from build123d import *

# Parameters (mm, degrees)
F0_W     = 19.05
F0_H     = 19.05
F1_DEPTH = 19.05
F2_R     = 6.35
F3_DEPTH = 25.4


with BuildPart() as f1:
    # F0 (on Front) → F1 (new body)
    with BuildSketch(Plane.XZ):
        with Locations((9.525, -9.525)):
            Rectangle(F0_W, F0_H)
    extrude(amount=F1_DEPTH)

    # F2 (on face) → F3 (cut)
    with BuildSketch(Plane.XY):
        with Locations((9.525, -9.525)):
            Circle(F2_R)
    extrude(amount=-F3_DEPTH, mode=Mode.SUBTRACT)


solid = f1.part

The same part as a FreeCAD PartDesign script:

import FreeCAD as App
import Part
import Sketcher
Q = App.Units.Quantity

doc = App.newDocument("Part")
body = doc.addObject("PartDesign::Body", "Body")

# Sketch on XZ plane
sketch1 = body.newObject("Sketcher::SketchObject", "Sketch")
sketch1.AttachmentSupport = (doc.getObject("XZ_Plane"), [""])
sketch1.MapMode = "FlatFace"
sketch1.addGeometry([
    Part.LineSegment(App.Vector(0, 0, 0), App.Vector(0, -19, 0)),
    Part.LineSegment(App.Vector(0, -19, 0), App.Vector(19, -19, 0)),
    Part.LineSegment(App.Vector(19, -19, 0), App.Vector(19, 0, 0)),
    Part.LineSegment(App.Vector(19, 0, 0), App.Vector(0, 0, 0)),
], False)
sketch1.addConstraint([
    Sketcher.Constraint("Coincident", 0, 2, 1, 1),
    Sketcher.Constraint("Coincident", 1, 2, 2, 1),
    Sketcher.Constraint("Coincident", 2, 2, 3, 1),
    Sketcher.Constraint("Coincident", 3, 2, 0, 1),
    Sketcher.Constraint("Vertical", 0),
    Sketcher.Constraint("Horizontal", 1),
    Sketcher.Constraint("Vertical", 2),
    Sketcher.Constraint("Horizontal", 3),
    Sketcher.Constraint("Coincident", 3, 2, -1, 1),
    Sketcher.Constraint("Equal", 3, 0),
    Sketcher.Constraint("DistanceX", 1, 1, 1, 2, Q("0.75 in")),
])
pad1 = body.newObject("PartDesign::Pad", "Pad")
pad1.Profile = sketch1
pad1.Length = Q("0.75 in")

# Sketch on XY plane
sketch2 = body.newObject("Sketcher::SketchObject", "Sketch001")
sketch2.AttachmentSupport = (doc.getObject("XY_Plane"), [""])
sketch2.MapMode = "FlatFace"
sketch2.addGeometry(Part.Circle(App.Vector(10, -10, 0), App.Vector(0, 0, 1), 6), False)
sketch2.addConstraint([
    Sketcher.Constraint("Diameter", 0, Q("0.5 in")),
    Sketcher.Constraint("DistanceX", -1, 1, 0, 3, Q("0.375 in")),
    Sketcher.Constraint("DistanceY", 0, 3, -1, 1, Q("0.375 in")),
])
pocket1 = body.newObject("PartDesign::Pocket", "Pocket")
pocket1.Profile = sketch2
pocket1.Length = Q("1 in")

doc.recompute()
